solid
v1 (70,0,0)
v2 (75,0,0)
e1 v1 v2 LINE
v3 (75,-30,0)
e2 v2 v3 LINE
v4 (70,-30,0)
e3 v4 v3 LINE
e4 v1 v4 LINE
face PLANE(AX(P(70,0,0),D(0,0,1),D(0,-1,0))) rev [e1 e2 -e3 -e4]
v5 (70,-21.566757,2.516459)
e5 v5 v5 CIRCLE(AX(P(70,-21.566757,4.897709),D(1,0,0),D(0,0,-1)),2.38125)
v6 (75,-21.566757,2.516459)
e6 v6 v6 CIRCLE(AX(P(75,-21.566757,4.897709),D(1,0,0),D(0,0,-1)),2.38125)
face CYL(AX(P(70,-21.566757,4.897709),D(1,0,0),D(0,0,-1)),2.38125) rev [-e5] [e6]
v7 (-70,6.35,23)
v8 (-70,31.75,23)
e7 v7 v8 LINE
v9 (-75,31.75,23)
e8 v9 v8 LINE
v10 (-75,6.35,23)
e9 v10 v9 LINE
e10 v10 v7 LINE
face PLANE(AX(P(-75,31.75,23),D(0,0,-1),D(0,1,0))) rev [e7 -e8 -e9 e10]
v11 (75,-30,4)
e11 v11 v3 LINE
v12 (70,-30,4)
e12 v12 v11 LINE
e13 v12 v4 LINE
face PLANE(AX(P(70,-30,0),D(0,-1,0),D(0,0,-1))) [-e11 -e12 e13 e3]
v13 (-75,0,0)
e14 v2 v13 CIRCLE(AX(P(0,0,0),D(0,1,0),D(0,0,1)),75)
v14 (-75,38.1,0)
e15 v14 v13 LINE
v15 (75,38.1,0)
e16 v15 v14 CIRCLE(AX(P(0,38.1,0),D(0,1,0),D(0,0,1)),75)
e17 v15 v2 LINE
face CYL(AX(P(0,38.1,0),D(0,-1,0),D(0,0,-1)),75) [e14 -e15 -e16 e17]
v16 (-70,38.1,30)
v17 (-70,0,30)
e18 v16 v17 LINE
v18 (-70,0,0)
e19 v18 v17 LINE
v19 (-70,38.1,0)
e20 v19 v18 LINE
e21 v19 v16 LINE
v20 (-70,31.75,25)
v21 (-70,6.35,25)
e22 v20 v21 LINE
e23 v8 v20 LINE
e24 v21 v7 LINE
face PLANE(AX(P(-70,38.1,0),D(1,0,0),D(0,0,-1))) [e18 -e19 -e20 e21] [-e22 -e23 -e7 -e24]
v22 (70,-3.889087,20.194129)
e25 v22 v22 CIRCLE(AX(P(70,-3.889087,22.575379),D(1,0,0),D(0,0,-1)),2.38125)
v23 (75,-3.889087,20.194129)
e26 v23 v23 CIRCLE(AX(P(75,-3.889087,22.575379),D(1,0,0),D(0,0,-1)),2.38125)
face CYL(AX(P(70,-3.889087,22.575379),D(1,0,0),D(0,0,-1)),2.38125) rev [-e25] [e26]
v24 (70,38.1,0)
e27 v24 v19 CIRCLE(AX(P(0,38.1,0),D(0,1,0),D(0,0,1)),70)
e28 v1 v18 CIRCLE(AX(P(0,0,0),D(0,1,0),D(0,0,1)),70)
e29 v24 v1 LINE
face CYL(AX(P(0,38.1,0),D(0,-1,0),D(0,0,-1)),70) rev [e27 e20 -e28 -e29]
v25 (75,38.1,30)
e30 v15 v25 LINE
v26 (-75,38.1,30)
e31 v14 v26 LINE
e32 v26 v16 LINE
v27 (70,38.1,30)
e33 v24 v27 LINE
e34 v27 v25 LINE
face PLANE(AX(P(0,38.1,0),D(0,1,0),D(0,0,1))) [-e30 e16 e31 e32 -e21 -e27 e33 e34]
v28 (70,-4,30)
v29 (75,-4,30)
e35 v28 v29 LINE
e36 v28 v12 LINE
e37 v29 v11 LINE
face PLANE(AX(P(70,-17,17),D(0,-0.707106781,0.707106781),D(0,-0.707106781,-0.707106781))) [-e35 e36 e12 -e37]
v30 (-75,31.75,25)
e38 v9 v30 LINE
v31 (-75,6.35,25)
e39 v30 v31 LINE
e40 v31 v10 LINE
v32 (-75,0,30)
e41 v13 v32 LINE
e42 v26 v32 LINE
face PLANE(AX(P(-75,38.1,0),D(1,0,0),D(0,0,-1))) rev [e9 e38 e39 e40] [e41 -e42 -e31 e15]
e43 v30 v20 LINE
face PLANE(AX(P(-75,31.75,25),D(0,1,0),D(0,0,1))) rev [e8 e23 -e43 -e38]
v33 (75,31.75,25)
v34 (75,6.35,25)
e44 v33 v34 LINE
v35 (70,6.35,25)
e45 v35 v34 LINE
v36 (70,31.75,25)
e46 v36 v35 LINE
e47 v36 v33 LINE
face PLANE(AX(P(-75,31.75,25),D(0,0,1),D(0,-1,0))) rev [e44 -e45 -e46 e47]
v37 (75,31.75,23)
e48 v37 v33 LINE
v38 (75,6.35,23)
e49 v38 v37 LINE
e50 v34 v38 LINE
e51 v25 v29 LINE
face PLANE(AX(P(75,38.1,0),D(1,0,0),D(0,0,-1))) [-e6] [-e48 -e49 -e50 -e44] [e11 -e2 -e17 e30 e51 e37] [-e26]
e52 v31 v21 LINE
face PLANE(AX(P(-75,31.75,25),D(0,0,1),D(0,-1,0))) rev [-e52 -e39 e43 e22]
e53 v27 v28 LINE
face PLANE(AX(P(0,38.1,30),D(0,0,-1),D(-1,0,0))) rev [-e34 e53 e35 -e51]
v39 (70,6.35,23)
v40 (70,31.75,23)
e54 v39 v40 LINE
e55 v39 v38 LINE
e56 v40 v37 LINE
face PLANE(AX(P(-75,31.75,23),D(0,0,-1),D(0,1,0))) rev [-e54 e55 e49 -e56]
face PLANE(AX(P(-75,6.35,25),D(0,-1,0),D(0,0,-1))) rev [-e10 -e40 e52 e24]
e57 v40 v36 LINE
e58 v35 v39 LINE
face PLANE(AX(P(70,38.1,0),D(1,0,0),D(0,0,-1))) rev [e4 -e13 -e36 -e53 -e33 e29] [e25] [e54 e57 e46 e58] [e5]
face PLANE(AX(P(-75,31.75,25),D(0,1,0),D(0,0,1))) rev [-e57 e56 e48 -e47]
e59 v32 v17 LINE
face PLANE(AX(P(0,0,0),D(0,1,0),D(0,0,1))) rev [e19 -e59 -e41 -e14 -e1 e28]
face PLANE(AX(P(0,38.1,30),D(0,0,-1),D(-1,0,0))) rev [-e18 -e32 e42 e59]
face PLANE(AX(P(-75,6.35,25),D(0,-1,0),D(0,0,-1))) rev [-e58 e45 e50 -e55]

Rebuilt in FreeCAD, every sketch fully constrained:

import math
import FreeCAD as App
import Part
import Sketcher
from FreeCAD import Vector
Q = App.Units.Quantity


def add_polygon(sketch, points):
    """Adds a closed chain of lines whose ends are joined by coincident constraints."""
    first, n = sketch.GeometryCount, len(points)
    for a, b in zip(points, points[1:] + points[:1]):
        sketch.addGeometry(Part.LineSegment(App.Vector(*a, 0), App.Vector(*b, 0)), False)
    for i in range(n):
        sketch.addConstraint(Sketcher.Constraint("Coincident", first + i, 2, first + (i + 1) % n, 1))

doc = App.newDocument("Part")
body = doc.addObject("PartDesign::Body", "Body")

sketch1 = body.newObject("Sketcher::SketchObject", "Sketch")
sketch1.AttachmentSupport = (doc.getObject("XZ_Plane"), [""])
sketch1.MapMode = "FlatFace"
sketch1.addGeometry([
    Part.LineSegment(Vector(-75, 0, 0), Vector(-75, 30, 0)),
    Part.LineSegment(Vector(-75, 30, 0), Vector(-70, 30, 0)),
    Part.LineSegment(Vector(-70, 30, 0), Vector(-70, 0, 0)),
    Part.ArcOfCircle(Part.Circle(Vector(0, 0, 0), Vector(0, 0, 1), 70), math.radians(180), math.radians(360)),
    Part.LineSegment(Vector(70, 0, 0), Vector(70, 30, 0)),
    Part.LineSegment(Vector(70, 30, 0), Vector(75, 30, 0)),
    Part.LineSegment(Vector(75, 30, 0), Vector(75, 0, 0)),
    Part.ArcOfCircle(Part.Circle(Vector(0, 0, 0), Vector(0, 0, 1), 75), math.radians(180), math.radians(360)),
], False)
sketch1.addConstraint([
    Sketcher.Constraint("Coincident", 0, 2, 1, 1),
    Sketcher.Constraint("Coincident", 1, 2, 2, 1),
    Sketcher.Constraint("Tangent", 2, 2, 3, 1),
    Sketcher.Constraint("Tangent", 3, 2, 4, 1),
    Sketcher.Constraint("Coincident", 4, 2, 5, 1),
    Sketcher.Constraint("Coincident", 5, 2, 6, 1),
    Sketcher.Constraint("Tangent", 6, 2, 7, 2),
    Sketcher.Constraint("Tangent", 7, 1, 0, 1),
    Sketcher.Constraint("Vertical", 0),
    Sketcher.Constraint("Horizontal", 1),
    Sketcher.Constraint("Vertical", 2),
    Sketcher.Constraint("Vertical", 4),
    Sketcher.Constraint("Horizontal", 5),
    Sketcher.Constraint("Vertical", 6),
    Sketcher.Constraint("Coincident", 3, 3, -1, 1),
    Sketcher.Constraint("Coincident", 7, 3, -1, 1),
    Sketcher.Constraint("Horizontal", 1, 2, 4, 2),
    Sketcher.Constraint("Radius", 3, Q("70 mm")),
    Sketcher.Constraint("Radius", 7, Q("75 mm")),
    Sketcher.Constraint("DistanceY", 0, 1, 0, 2, Q("30 mm")),
])
pad1 = body.newObject("PartDesign::Pad", "Pad")
pad1.Profile = sketch1
pad1.Length = 38.1
pad1.Reversed = True

sketch2 = body.newObject("Sketcher::SketchObject", "Sketch001")
sketch2.AttachmentSupport = (doc.getObject("YZ_Plane"), [""])
sketch2.MapMode = "FlatFace"
sketch2.AttachmentOffset = App.Placement(Vector(0, 0, 75), App.Rotation())
add_polygon(sketch2, [(31.8, 25), (6.3, 25), (6.3, 23), (31.8, 23)])
sketch2.addConstraint([
    Sketcher.Constraint("Horizontal", 0),
    Sketcher.Constraint("Vertical", 1),
    Sketcher.Constraint("Horizontal", 2),
    Sketcher.Constraint("Vertical", 3),
    Sketcher.Constraint("DistanceY", 1, 2, 1, 1, Q("2 mm")),
    Sketcher.Constraint("DistanceX", 0, 2, 0, 1, Q("25.4 mm")),
    Sketcher.Constraint("DistanceY", -1, 1, 0, 2, Q("25 mm")),
    Sketcher.Constraint("DistanceX", -1, 1, 0, 2, Q("6.35 mm")),
])
pocket1 = body.newObject("PartDesign::Pocket", "Pocket")
pocket1.Profile = sketch2
pocket1.Type = "ThroughAll"

sketch3 = body.newObject("Sketcher::SketchObject", "Sketch002")
sketch3.AttachmentSupport = (doc.getObject("YZ_Plane"), [""])
sketch3.MapMode = "FlatFace"
sketch3.AttachmentOffset = App.Placement(Vector(0, 0, 75), App.Rotation())
add_polygon(sketch3, [(0, 30), (-4, 30), (-30, 4), (-30, 0), (0, 0)])
sketch3.addGeometry(Part.ArcOfCircle(Part.Circle(Vector(-21.6, 4.9, 0), Vector(0, 0, 1), 2.4), math.radians(45), math.radians(225)), False)
sketch3.addGeometry(Part.ArcOfCircle(Part.Circle(Vector(-21.6, 4.9, 0), Vector(0, 0, 1), 2.4), math.radians(-90), math.radians(45)), False)
sketch3.addGeometry(Part.ArcOfCircle(Part.Circle(Vector(-21.6, 4.9, 0), Vector(0, 0, 1), 2.4), math.radians(-135), math.radians(-90)), False)
sketch3.addGeometry(Part.ArcOfCircle(Part.Circle(Vector(-3.9, 22.6, 0), Vector(0, 0, 1), 2.4), math.radians(45), math.radians(225)), False)
sketch3.addGeometry(Part.ArcOfCircle(Part.Circle(Vector(-3.9, 22.6, 0), Vector(0, 0, 1), 2.4), math.radians(-90), math.radians(45)), False)
sketch3.addGeometry(Part.ArcOfCircle(Part.Circle(Vector(-3.9, 22.6, 0), Vector(0, 0, 1), 2.4), math.radians(-135), math.radians(-90)), False)
sketch3.addConstraint([
    Sketcher.Constraint("Tangent", 5, 1, 6, 2),
    Sketcher.Constraint("Tangent", 6, 1, 7, 2),
    Sketcher.Constraint("Tangent", 7, 1, 5, 2),
    Sketcher.Constraint("Tangent", 8, 1, 9, 2),
    Sketcher.Constraint("Tangent", 9, 1, 10, 2),
    Sketcher.Constraint("Tangent", 10, 1, 8, 2),
    Sketcher.Constraint("Horizontal", 0),
    Sketcher.Constraint("Vertical", 2),
    Sketcher.Constraint("Horizontal", 3),
    Sketcher.Constraint("Vertical", 4),
    Sketcher.Constraint("Coincident", 3, 2, -1, 1),
    Sketcher.Constraint("Equal", 7, 8),
    Sketcher.Constraint("Vertical", 7, 3, 6, 1),
    Sketcher.Constraint("Vertical", 10, 3, 9, 1),
    Sketcher.Constraint("Equal", 0, 2),
    Sketcher.Constraint("Equal", 3, 4),
    Sketcher.Constraint("DistanceX", 0, 2, 0, 1, Q("4 mm")),
    Sketcher.Constraint("DistanceX", 3, 1, 3, 2, Q("30 mm")),
    Sketcher.Constraint("Radius", 5, Q("2.38125 mm")),
    Sketcher.Constraint("DistanceX", 5, 3, 5, 1, Q("1.683798 mm")),
    Sketcher.Constraint("DistanceX", 7, 1, 6, 1, Q("1.683798 mm")),
    Sketcher.Constraint("DistanceX", 8, 3, 8, 1, Q("1.683798 mm")),
    Sketcher.Constraint("DistanceX", 10, 1, 9, 1, Q("1.683798 mm")),
    Sketcher.Constraint("DistanceY", -1, 1, 5, 3, Q("4.897709 mm")),
    Sketcher.Constraint("DistanceY", -1, 1, 8, 3, Q("22.575379 mm")),
    Sketcher.Constraint("DistanceX", 5, 1, -1, 1, Q("19.882959 mm")),
    Sketcher.Constraint("DistanceX", 8, 1, -1, 1, Q("2.205289 mm")),
])
pad2 = body.newObject("PartDesign::Pad", "Pad001")
pad2.Profile = sketch3
pad2.Length = 5
pad2.Reversed = True

doc.recompute()
